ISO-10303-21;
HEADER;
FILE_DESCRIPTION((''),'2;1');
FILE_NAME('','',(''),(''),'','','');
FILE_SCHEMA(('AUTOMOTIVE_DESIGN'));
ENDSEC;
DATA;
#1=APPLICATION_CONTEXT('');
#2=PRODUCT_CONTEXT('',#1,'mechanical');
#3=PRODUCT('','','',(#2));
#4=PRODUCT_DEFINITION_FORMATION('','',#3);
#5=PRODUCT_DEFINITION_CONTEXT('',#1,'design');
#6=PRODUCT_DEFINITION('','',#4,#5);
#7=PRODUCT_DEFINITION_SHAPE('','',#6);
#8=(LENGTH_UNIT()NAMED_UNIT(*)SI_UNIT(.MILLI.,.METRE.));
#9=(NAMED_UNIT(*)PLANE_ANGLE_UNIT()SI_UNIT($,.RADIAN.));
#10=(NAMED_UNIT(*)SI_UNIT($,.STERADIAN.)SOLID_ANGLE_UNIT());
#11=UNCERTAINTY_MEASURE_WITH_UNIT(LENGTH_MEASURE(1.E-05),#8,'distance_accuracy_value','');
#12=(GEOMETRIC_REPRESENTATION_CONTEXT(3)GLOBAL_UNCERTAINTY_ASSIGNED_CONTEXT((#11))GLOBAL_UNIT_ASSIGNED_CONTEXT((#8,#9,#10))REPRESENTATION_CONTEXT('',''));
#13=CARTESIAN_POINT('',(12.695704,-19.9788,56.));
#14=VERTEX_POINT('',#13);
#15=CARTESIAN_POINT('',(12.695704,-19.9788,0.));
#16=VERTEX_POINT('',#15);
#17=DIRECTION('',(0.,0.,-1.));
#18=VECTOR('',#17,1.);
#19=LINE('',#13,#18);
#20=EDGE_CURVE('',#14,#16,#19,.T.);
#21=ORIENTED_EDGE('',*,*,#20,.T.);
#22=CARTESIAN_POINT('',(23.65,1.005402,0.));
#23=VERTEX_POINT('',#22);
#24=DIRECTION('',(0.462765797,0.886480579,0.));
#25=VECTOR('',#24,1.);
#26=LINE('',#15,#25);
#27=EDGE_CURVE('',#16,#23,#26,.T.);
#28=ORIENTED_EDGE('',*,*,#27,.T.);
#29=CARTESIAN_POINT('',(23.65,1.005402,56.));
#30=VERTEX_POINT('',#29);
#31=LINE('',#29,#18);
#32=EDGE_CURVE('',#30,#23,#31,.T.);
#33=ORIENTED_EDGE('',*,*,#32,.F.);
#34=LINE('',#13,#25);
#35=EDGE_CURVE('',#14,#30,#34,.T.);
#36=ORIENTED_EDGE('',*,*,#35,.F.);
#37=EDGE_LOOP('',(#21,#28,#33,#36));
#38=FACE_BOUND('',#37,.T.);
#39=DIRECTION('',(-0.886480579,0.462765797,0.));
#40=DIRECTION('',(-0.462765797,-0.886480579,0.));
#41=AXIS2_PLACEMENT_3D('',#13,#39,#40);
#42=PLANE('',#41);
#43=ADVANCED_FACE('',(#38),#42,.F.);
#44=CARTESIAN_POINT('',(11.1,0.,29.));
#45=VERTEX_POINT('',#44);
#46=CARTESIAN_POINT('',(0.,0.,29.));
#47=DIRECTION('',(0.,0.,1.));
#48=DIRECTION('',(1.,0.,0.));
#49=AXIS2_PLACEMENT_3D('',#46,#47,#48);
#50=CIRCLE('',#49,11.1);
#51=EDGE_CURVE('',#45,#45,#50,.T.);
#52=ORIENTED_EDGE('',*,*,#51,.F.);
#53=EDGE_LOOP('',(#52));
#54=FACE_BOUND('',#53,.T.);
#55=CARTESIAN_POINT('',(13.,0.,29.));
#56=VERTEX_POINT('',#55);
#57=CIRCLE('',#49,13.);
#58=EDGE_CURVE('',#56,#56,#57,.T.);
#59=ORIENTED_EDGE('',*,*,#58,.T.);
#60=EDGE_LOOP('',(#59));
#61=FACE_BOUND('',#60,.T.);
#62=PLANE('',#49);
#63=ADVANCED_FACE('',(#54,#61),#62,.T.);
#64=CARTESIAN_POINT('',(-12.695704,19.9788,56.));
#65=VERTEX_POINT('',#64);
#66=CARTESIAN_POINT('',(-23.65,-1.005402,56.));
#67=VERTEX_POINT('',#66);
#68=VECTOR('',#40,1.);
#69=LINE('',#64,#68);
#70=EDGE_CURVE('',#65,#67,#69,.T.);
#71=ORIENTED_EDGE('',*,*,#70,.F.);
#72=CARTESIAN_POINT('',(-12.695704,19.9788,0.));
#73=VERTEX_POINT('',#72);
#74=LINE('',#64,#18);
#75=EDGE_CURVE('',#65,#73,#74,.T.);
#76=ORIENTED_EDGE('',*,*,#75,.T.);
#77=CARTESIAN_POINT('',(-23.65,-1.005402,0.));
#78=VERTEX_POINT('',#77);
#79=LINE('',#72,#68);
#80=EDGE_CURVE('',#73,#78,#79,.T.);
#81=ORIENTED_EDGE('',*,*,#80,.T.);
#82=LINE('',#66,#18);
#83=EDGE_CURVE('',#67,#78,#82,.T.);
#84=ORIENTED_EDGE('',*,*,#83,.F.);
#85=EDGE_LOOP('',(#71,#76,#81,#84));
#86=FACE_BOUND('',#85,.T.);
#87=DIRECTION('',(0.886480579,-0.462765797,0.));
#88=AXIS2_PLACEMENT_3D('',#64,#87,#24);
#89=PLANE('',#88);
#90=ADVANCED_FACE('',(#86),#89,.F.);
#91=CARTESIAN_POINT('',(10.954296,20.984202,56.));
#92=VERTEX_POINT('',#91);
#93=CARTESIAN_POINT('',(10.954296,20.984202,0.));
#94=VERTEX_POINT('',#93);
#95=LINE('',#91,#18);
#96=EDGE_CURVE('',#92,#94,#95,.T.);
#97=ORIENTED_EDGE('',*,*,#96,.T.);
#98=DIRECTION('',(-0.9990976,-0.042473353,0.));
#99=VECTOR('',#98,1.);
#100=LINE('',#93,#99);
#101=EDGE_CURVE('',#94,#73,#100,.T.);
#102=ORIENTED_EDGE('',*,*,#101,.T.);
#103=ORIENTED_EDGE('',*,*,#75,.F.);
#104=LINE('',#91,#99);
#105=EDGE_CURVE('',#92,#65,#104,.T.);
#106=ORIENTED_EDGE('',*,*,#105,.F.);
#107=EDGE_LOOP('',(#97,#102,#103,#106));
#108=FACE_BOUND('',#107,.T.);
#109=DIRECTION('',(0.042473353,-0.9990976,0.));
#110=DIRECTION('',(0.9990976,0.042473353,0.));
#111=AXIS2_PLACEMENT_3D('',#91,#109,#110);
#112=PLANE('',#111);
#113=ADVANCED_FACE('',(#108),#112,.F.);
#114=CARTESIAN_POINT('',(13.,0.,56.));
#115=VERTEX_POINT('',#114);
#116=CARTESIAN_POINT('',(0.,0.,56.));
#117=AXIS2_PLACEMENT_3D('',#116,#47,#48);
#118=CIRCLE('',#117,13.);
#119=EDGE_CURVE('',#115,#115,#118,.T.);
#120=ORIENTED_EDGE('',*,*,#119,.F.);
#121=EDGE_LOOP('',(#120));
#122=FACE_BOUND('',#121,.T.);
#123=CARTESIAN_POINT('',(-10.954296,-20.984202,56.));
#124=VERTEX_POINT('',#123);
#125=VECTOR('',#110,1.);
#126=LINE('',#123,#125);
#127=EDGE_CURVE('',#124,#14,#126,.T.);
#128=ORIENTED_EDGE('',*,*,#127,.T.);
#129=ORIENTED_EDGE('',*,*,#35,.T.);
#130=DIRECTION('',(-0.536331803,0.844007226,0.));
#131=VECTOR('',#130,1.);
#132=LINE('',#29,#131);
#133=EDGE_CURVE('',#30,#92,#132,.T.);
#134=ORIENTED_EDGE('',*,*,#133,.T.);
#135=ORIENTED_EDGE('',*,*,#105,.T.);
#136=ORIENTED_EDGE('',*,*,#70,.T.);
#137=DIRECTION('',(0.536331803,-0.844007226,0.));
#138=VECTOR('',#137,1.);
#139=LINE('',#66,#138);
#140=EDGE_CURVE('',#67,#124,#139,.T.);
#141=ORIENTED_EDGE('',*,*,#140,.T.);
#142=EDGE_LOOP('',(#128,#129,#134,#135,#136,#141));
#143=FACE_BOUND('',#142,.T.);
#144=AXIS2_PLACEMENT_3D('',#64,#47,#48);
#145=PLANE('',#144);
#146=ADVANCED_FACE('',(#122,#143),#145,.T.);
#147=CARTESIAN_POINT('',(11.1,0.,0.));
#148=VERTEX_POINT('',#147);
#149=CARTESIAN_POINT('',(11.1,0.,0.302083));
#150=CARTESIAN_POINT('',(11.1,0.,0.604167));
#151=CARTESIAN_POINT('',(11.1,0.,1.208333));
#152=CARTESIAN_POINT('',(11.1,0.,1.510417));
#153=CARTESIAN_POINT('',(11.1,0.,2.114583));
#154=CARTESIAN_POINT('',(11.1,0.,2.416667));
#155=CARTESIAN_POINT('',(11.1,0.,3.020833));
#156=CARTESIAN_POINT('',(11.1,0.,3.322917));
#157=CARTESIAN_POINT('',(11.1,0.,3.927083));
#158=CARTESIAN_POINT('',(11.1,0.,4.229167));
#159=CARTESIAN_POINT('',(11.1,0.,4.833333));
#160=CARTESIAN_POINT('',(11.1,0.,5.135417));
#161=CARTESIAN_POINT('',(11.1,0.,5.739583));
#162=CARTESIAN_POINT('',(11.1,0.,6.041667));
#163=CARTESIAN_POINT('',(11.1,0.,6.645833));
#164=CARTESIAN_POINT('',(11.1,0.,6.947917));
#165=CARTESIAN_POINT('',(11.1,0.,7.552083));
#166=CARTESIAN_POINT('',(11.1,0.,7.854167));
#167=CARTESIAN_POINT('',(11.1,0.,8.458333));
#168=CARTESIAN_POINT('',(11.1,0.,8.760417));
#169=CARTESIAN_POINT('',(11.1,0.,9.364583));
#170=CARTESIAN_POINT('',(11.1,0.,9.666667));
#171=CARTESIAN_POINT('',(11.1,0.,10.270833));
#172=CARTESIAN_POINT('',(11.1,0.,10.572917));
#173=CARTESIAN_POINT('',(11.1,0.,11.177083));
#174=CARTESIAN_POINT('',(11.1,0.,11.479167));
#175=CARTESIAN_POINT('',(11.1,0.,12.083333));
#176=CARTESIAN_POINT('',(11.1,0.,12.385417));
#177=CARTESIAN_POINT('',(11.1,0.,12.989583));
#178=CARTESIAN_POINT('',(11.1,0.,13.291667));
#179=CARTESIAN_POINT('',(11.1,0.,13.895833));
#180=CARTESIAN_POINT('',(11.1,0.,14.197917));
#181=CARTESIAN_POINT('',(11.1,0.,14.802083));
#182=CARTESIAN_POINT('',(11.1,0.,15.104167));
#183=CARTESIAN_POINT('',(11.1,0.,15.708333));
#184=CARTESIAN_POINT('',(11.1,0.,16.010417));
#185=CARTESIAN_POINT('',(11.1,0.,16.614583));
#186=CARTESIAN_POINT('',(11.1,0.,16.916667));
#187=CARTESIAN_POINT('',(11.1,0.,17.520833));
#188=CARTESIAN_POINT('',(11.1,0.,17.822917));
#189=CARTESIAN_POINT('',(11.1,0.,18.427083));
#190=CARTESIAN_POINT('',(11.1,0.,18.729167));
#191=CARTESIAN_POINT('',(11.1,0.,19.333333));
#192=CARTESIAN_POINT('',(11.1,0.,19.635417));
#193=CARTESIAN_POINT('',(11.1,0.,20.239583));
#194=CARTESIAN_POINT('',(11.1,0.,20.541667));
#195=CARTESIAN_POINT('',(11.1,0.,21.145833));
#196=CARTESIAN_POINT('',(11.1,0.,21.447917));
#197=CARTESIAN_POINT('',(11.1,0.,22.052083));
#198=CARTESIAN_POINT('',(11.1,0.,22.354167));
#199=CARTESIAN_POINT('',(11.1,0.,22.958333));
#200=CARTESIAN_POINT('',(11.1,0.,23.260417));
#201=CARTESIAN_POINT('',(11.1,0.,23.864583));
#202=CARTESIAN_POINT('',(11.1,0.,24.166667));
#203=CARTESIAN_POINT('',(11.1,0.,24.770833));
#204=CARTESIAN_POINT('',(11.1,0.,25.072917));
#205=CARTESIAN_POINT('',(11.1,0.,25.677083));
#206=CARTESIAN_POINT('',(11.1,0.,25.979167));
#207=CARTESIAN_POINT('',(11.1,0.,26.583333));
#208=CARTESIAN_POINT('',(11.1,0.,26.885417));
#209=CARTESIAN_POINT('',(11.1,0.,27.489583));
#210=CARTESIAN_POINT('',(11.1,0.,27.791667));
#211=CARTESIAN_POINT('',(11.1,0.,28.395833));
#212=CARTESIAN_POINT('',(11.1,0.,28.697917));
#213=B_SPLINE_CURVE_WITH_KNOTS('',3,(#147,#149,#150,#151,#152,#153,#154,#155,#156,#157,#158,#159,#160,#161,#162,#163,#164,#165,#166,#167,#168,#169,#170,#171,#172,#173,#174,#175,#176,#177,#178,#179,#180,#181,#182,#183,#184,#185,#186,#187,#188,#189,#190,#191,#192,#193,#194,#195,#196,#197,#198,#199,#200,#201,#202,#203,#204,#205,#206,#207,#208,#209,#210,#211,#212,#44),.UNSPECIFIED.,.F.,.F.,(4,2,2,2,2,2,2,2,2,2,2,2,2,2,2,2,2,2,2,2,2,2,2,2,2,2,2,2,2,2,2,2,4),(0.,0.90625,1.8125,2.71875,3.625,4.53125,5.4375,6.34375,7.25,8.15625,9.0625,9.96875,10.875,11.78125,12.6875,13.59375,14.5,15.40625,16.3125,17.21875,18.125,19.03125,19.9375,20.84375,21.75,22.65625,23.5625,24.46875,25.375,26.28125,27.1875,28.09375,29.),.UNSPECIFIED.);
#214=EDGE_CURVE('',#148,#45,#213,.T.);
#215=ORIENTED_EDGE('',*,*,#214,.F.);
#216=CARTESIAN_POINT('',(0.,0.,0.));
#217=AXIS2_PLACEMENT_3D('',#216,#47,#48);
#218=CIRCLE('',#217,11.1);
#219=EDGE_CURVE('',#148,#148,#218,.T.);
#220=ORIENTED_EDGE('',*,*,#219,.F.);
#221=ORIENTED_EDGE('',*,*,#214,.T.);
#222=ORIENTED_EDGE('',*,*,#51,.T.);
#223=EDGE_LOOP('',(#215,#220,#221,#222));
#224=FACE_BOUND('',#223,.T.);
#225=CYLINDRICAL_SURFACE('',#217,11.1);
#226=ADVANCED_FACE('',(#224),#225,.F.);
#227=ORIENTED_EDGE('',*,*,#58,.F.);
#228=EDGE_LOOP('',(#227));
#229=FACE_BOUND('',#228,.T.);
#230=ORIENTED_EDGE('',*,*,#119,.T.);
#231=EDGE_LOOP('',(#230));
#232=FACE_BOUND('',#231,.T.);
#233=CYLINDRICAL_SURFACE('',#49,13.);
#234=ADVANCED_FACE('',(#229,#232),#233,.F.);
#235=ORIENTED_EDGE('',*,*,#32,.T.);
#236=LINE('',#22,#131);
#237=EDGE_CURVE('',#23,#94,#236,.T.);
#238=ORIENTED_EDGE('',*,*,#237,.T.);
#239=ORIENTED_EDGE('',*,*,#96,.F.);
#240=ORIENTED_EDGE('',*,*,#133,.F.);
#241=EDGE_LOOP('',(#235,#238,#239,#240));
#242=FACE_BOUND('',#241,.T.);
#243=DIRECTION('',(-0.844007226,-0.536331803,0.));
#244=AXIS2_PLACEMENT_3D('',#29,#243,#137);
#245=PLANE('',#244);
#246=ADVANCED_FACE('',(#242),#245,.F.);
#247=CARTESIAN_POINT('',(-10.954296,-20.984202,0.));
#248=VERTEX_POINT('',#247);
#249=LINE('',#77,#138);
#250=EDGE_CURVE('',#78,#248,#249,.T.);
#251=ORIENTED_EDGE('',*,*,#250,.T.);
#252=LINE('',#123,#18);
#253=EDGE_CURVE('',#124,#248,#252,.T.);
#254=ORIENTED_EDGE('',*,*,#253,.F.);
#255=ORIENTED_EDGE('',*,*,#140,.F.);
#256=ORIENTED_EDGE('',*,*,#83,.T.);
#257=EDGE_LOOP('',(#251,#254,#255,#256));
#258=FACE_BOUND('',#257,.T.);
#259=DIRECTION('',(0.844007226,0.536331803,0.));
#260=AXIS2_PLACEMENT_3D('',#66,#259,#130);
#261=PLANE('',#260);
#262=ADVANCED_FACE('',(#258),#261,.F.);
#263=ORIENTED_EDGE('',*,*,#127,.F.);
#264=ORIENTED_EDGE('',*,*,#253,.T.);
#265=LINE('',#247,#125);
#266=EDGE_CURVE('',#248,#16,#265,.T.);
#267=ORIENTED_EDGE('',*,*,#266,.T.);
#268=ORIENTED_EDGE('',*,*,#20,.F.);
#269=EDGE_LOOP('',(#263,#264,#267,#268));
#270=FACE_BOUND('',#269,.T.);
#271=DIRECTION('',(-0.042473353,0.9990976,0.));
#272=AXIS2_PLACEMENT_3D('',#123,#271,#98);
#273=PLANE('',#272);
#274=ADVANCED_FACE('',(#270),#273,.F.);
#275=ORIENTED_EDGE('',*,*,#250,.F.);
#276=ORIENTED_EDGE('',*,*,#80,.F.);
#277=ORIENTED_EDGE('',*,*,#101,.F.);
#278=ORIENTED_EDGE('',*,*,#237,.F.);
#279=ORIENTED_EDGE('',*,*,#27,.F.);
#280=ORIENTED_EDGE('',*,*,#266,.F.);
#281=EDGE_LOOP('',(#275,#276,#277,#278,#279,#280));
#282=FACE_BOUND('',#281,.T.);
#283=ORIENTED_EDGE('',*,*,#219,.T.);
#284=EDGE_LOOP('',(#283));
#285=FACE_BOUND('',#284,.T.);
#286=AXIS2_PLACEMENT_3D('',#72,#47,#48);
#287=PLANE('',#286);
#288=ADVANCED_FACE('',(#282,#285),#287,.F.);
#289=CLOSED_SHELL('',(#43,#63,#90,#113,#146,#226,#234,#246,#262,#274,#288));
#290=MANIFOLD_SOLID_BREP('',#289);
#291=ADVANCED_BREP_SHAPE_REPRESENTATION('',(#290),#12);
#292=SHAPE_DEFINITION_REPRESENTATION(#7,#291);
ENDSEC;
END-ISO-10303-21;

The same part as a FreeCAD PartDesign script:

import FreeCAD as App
import Part
import Sketcher

V = App.Vector
Q = App.Units.Quantity


def add_polygon(sketch, points):
    """Adds a closed chain of lines whose ends are joined by coincident constraints."""
    first, n = sketch.GeometryCount, len(points)
    for a, b in zip(points, points[1:] + points[:1]):
        sketch.addGeometry(Part.LineSegment(App.Vector(*a, 0), App.Vector(*b, 0)), False)
    for i in range(n):
        sketch.addConstraint(Sketcher.Constraint("Coincident", first + i, 2, first + (i + 1) % n, 1))

doc = App.newDocument("Part")
body = doc.addObject("PartDesign::Body", "Body")

# Sketch on XY plane
sketch1 = body.newObject("Sketcher::SketchObject", "Sketch")
sketch1.AttachmentSupport = (doc.getObject("XY_Plane"), [""])
sketch1.MapMode = "FlatFace"
add_polygon(sketch1, [(-12.695704, 19.9788), (-23.65, -1.005402), (-10.954296, -20.984202), (12.695704, -19.9788), (23.65, 1.005402), (10.954296, 20.984202)])  # lines 0-5
sketch1.addConstraint(Sketcher.Constraint("Symmetric", 0, 2, 3, 2, -1, 1))
sketch1.addConstraint(Sketcher.Constraint("Symmetric", 1, 2, 4, 2, -1, 1))
sketch1.addConstraint(Sketcher.Constraint("Symmetric", 2, 2, 5, 2, -1, 1))
sketch1.addConstraint(Sketcher.Constraint("Equal", 0, 1))
sketch1.addConstraint(Sketcher.Constraint("Equal", 1, 2))
sketch1.addConstraint(Sketcher.Constraint("DistanceX", 0, 2, 3, 2, Q("47.3 mm")))
sketch1.addConstraint(Sketcher.Constraint("DistanceX", 1, 2, 2, 2, Q("23.65 mm")))
sketch1.addConstraint(Sketcher.Constraint("DistanceY", 2, 2, 4, 2, Q("40.963002 mm")))
sketch1.addConstraint(Sketcher.Constraint("DistanceY", 1, 2, -1, 1, Q("20.984202 mm")))
pad1 = body.newObject("PartDesign::Pad", "Pad")
pad1.Profile = sketch1
pad1.Length = 56

# Sketch on XY plane
sketch2 = body.newObject("Sketcher::SketchObject", "Sketch001")
sketch2.AttachmentSupport = (doc.getObject("XY_Plane"), [""])
sketch2.MapMode = "FlatFace"
sketch2.AttachmentOffset = App.Placement(V(0, 0, 56), App.Rotation())
sketch2.addGeometry(Part.Circle(V(0, 0, 0), V(0, 0, 1), 13), False)
sketch2.addConstraint(Sketcher.Constraint("Coincident", 0, 3, -1, 1))
sketch2.addConstraint(Sketcher.Constraint("Diameter", 0, Q("26 mm")))
pocket1 = body.newObject("PartDesign::Pocket", "Pocket")
pocket1.Profile = sketch2
pocket1.Length = 27

# Sketch on XY plane
sketch3 = body.newObject("Sketcher::SketchObject", "Sketch002")
sketch3.AttachmentSupport = (doc.getObject("XY_Plane"), [""])
sketch3.MapMode = "FlatFace"
sketch3.AttachmentOffset = App.Placement(V(0, 0, 29), App.Rotation())
sketch3.addGeometry(Part.Circle(V(0, 0, 0), V(0, 0, 1), 11.1), False)
sketch3.addConstraint(Sketcher.Constraint("Coincident", 0, 3, -1, 1))
sketch3.addConstraint(Sketcher.Constraint("Diameter", 0, Q("22.2 mm")))
pocket2 = body.newObject("PartDesign::Pocket", "Pocket001")
pocket2.Profile = sketch3
pocket2.Type = "ThroughAll"

doc.recompute()
